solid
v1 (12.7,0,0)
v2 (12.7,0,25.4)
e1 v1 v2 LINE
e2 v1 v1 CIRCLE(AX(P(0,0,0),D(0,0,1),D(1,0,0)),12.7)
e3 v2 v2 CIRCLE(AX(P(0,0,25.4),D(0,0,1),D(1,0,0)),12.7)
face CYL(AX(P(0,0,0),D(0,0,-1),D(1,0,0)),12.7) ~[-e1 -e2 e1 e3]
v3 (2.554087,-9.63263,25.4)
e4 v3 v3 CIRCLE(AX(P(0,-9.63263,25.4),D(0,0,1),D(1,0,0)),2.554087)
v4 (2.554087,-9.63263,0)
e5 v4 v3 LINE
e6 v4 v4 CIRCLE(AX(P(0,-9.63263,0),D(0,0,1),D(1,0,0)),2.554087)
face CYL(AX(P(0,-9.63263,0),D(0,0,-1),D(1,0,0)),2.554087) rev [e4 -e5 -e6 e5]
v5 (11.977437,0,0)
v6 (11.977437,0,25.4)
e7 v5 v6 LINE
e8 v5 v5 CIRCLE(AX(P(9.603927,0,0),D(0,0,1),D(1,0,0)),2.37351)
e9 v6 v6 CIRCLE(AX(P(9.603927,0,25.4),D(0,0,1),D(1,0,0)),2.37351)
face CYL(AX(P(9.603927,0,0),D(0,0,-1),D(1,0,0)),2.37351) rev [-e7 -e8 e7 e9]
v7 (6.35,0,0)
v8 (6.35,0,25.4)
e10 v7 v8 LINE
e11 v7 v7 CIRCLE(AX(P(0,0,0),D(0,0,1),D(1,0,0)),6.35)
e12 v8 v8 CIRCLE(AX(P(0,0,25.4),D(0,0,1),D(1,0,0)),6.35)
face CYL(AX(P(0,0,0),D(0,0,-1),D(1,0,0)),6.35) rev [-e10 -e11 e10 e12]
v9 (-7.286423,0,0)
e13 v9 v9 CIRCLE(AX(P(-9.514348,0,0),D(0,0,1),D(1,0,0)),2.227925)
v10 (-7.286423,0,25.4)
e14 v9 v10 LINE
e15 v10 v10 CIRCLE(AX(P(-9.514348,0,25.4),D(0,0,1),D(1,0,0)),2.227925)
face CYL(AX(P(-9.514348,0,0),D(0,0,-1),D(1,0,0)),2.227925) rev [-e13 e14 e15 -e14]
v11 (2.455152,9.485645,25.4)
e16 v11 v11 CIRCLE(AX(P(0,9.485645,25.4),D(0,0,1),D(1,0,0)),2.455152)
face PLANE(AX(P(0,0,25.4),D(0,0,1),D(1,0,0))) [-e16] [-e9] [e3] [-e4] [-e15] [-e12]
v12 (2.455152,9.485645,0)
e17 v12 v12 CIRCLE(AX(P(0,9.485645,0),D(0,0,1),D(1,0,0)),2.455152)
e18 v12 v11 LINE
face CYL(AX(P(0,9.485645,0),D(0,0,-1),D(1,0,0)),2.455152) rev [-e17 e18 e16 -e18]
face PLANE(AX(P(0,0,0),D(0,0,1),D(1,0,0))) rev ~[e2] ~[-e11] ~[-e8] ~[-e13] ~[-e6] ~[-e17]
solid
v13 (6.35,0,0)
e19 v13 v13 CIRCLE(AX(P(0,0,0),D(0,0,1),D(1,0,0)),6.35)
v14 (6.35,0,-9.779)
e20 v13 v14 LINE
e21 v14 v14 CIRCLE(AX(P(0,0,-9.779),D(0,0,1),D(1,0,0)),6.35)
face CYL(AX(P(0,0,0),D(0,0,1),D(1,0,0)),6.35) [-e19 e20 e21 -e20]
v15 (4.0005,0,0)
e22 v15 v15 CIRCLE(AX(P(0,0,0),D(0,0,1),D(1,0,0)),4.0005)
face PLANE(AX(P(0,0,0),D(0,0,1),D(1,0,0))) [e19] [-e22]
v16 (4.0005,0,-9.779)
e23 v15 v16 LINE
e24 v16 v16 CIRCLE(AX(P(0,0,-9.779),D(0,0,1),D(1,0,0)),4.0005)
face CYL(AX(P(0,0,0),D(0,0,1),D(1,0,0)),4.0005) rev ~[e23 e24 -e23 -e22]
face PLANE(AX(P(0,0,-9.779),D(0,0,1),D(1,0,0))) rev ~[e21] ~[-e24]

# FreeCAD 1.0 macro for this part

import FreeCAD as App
import Part
import Sketcher
Q = App.Units.Quantity

doc = App.newDocument("Part")
body = doc.addObject("PartDesign::Body", "Body")
body.AllowCompound = True

# Sketch on XY plane
sketch1 = body.newObject("Sketcher::SketchObject", "Sketch")
sketch1.AttachmentSupport = (doc.getObject("XY_Plane"), [""])
sketch1.MapMode = "FlatFace"
sketch1.addGeometry(Part.Circle(App.Vector(0, 0, 0), App.Vector(0, 0, 1), 6.3), False)
sketch1.addGeometry(Part.Circle(App.Vector(0, 0, 0), App.Vector(0, 0, 1), 4), False)
sketch1.addConstraint(Sketcher.Constraint("Coincident", 0, 3, -1, 1))
sketch1.addConstraint(Sketcher.Constraint("Coincident", 1, 3, -1, 1))
sketch1.addConstraint(Sketcher.Constraint("Diameter", 0, Q("0.5 in")))
sketch1.addConstraint(Sketcher.Constraint("Diameter", 1, Q("0.315 in")))
pad1 = body.newObject("PartDesign::Pad", "Pad")
pad1.Profile = sketch1
pad1.Length = Q("0.385 in")
pad1.Reversed = True

# Sketch on XY plane
sketch2 = body.newObject("Sketcher::SketchObject", "Sketch001")
sketch2.AttachmentSupport = (doc.getObject("XY_Plane"), [""])
sketch2.MapMode = "FlatFace"
sketch2.addGeometry(Part.Circle(App.Vector(0, 0, 0), App.Vector(0, 0, 1), 12.7), False)
sketch2.addGeometry(Part.Circle(App.Vector(0, -9.6, 0), App.Vector(0, 0, 1), 2.6), False)
sketch2.addGeometry(Part.Circle(App.Vector(-9.5, 0, 0), App.Vector(0, 0, 1), 2.2), False)
sketch2.addGeometry(Part.Circle(App.Vector(0, 0, 0), App.Vector(0, 0, 1), 6.3), False)
sketch2.addGeometry(Part.Circle(App.Vector(0, 9.5, 0), App.Vector(0, 0, 1), 2.5), False)
sketch2.addGeometry(Part.Circle(App.Vector(9.6, 0, 0), App.Vector(0, 0, 1), 2.4), False)
sketch2.addConstraint(Sketcher.Constraint("Coincident", 0, 3, -1, 1))
sketch2.addConstraint(Sketcher.Constraint("Coincident", 3, 3, -1, 1))
sketch2.addConstraint(Sketcher.Constraint("PointOnObject", 1, 3, -2))
sketch2.addConstraint(Sketcher.Constraint("PointOnObject", 2, 3, -1))
sketch2.addConstraint(Sketcher.Constraint("PointOnObject", 4, 3, -2))
sketch2.addConstraint(Sketcher.Constraint("PointOnObject", 5, 3, -1))
sketch2.addConstraint(Sketcher.Constraint("Diameter", 0, Q("1 in")))
sketch2.addConstraint(Sketcher.Constraint("Diameter", 3, Q("0.5 in")))
sketch2.addConstraint(Sketcher.Constraint("Diameter", 2, 4.45585))
sketch2.addConstraint(Sketcher.Constraint("Diameter", 5, 4.74702))
sketch2.addConstraint(Sketcher.Constraint("Diameter", 1, 5.108174))
sketch2.addConstraint(Sketcher.Constraint("Diameter", 4, 4.910304))
sketch2.addConstraint(Sketcher.Constraint("DistanceY", 1, 3, -1, 1, 9.63263))
sketch2.addConstraint(Sketcher.Constraint("DistanceX", 2, 3, -1, 1, 9.514348))
sketch2.addConstraint(Sketcher.Constraint("DistanceY", -1, 1, 4, 3, 9.485645))
sketch2.addConstraint(Sketcher.Constraint("DistanceX", -1, 1, 5, 3, 9.603927))
pad2 = body.newObject("PartDesign::Pad", "Pad001")
pad2.Profile = sketch2
pad2.Length = Q("1 in")

doc.recompute()
